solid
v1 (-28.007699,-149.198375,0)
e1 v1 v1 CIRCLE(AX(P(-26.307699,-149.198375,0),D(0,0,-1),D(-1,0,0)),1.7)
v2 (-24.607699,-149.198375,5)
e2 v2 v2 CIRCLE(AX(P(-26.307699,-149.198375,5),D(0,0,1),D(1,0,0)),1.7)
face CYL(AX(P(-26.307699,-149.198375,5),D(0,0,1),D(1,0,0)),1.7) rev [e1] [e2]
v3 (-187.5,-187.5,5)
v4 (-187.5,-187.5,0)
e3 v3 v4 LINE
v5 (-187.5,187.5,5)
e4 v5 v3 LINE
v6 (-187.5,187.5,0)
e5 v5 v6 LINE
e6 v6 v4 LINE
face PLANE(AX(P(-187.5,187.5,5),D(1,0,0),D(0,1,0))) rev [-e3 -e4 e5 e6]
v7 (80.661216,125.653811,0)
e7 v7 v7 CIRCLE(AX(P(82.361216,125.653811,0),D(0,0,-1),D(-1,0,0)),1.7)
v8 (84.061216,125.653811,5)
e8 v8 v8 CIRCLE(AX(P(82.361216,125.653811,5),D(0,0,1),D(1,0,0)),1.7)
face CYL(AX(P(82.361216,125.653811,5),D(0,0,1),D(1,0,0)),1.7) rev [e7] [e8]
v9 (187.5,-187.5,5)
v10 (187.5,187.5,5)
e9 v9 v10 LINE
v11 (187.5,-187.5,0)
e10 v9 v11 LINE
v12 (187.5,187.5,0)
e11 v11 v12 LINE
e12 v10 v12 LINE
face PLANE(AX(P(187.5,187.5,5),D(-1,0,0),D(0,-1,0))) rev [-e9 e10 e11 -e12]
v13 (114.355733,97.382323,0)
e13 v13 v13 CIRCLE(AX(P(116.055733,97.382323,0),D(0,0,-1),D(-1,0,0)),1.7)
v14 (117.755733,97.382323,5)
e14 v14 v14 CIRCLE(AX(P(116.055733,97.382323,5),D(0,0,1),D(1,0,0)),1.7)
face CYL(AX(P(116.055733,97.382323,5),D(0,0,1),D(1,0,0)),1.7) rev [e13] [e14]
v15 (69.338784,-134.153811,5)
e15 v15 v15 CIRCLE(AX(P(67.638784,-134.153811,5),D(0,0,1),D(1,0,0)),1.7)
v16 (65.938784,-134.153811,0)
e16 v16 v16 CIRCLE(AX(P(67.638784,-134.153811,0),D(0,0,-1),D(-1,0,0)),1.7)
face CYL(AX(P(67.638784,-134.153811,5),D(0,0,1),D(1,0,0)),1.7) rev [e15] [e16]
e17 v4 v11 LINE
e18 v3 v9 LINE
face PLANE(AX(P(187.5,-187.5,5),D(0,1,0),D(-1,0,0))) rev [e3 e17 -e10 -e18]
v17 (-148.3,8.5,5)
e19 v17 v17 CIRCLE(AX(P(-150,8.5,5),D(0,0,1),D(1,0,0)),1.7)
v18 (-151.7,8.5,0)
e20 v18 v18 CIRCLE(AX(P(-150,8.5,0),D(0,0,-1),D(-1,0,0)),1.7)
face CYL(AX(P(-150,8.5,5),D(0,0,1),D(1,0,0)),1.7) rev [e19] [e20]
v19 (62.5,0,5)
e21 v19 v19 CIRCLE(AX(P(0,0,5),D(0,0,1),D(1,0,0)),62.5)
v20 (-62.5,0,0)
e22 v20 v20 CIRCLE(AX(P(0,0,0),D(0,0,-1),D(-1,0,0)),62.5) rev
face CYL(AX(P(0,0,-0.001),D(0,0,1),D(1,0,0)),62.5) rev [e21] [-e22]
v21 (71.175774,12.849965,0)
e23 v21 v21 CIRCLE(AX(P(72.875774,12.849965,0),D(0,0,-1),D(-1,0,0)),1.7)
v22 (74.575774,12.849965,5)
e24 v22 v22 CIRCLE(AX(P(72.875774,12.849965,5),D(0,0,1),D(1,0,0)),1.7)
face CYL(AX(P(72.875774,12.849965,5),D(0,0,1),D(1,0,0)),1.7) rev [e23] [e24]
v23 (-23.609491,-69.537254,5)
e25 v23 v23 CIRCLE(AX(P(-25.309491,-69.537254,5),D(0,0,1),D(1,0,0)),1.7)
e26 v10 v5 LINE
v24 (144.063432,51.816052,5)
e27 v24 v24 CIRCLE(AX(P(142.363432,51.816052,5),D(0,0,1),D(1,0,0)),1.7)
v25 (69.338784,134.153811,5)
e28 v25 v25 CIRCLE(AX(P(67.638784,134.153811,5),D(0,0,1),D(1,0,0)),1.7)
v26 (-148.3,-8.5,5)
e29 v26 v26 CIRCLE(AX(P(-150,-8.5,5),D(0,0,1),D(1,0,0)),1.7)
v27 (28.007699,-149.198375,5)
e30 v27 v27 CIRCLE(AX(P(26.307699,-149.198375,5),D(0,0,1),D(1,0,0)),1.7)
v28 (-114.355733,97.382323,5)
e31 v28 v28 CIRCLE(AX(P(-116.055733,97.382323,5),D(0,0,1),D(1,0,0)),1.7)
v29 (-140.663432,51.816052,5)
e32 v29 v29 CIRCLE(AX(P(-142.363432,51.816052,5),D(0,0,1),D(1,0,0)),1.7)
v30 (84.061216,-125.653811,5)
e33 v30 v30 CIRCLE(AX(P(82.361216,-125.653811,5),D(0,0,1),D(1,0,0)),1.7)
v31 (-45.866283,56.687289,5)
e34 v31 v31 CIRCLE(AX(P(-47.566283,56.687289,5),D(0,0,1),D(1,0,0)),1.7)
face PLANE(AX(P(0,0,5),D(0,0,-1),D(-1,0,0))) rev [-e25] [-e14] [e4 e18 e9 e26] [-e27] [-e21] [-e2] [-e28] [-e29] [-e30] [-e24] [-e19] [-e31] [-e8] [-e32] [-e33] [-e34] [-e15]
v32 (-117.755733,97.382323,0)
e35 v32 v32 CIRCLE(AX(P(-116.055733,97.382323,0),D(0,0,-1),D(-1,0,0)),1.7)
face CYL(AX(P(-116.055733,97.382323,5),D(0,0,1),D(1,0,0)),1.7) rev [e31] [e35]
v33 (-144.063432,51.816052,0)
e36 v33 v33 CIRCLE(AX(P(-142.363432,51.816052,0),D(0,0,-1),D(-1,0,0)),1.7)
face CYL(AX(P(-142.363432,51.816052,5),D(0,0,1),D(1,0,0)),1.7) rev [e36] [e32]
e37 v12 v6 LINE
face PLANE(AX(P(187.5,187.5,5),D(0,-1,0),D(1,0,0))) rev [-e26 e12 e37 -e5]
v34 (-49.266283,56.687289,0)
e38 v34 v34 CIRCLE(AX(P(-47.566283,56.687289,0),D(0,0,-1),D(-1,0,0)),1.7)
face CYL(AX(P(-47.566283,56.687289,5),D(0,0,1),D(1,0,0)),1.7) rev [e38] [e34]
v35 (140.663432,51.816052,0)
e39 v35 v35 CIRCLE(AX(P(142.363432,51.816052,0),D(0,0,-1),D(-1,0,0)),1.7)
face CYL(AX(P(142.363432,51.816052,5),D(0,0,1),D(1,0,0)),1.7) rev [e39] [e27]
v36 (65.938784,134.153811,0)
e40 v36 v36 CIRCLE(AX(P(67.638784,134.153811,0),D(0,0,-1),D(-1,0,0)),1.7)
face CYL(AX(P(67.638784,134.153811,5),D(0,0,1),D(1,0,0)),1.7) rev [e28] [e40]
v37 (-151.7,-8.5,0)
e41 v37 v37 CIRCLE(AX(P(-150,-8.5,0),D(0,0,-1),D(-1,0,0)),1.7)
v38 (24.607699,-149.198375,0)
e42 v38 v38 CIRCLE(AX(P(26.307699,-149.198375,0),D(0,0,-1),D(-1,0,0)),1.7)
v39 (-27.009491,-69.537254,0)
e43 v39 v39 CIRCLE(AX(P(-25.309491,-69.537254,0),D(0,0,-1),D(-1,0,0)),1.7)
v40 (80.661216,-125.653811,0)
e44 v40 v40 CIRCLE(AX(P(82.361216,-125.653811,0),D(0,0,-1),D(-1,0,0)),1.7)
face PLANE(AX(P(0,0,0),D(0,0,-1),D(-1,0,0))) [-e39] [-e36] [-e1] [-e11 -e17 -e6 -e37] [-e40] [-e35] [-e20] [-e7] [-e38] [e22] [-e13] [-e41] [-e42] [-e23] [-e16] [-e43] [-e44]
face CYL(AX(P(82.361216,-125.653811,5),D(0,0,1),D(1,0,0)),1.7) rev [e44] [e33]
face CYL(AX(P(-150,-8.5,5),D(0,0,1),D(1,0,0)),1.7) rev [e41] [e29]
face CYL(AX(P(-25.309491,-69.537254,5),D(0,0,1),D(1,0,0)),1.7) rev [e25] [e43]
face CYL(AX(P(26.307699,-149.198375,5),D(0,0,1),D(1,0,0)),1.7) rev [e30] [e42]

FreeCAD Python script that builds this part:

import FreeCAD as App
import Part
import Sketcher

V = App.Vector

doc = App.newDocument("Part")
body = doc.addObject("PartDesign::Body", "Body")

# Sketch on XY plane
sketch1 = body.newObject("Sketcher::SketchObject", "Sketch")
sketch1.AttachmentSupport = (doc.getObject("XY_Plane"), [""])
sketch1.MapMode = "FlatFace"
sketch1.addGeometry([
    Part.LineSegment(V(-187.5, 187.5, 0), V(-187.5, -187.5, 0)),
    Part.LineSegment(V(-187.5, -187.5, 0), V(187.5, -187.5, 0)),
    Part.LineSegment(V(187.5, -187.5, 0), V(187.5, 187.5, 0)),
    Part.LineSegment(V(187.5, 187.5, 0), V(-187.5, 187.5, 0)),
], False)
sketch1.addConstraint([
    Sketcher.Constraint("Coincident", 0, 2, 1, 1),
    Sketcher.Constraint("Coincident", 1, 2, 2, 1),
    Sketcher.Constraint("Coincident", 2, 2, 3, 1),
    Sketcher.Constraint("Coincident", 3, 2, 0, 1),
    Sketcher.Constraint("Vertical", 0),
    Sketcher.Constraint("Horizontal", 1),
    Sketcher.Constraint("Vertical", 2),
    Sketcher.Constraint("Horizontal", 3),
    Sketcher.Constraint("Symmetric", 0, 2, 2, 2, -1, 1),
    Sketcher.Constraint("Equal", 3, 0),
    Sketcher.Constraint("DistanceX", 1, 1, 1, 2, 375.0),
])
pad1 = body.newObject("PartDesign::Pad", "Pad")
pad1.Profile = sketch1
pad1.Length = 5

# Sketch on XY plane
sketch2 = body.newObject("Sketcher::SketchObject", "Sketch001")
sketch2.AttachmentSupport = (doc.getObject("XY_Plane"), [""])
sketch2.MapMode = "FlatFace"
sketch2.AttachmentOffset = App.Placement(V(0, 0, 5), App.Rotation())
sketch2.addGeometry(Part.Circle(V(0, 0, 0), V(0, 0, 1), 62.5), False)
sketch2.addConstraint([
    Sketcher.Constraint("Coincident", 0, 3, -1, 1),
    Sketcher.Constraint("Diameter", 0, 125.0),
])
pocket1 = body.newObject("PartDesign::Pocket", "Pocket")
pocket1.Profile = sketch2
pocket1.Type = "UpToFirst"

# Sketch on XY plane
sketch3 = body.newObject("Sketcher::SketchObject", "Sketch002")
sketch3.AttachmentSupport = (doc.getObject("XY_Plane"), [""])
sketch3.MapMode = "FlatFace"
sketch3.AttachmentOffset = App.Placement(V(0, 0, 5), App.Rotation())
sketch3.addGeometry([
    Part.Circle(V(-26.307699, -149.198375, 0), V(0, 0, 1), 1.7),
    Part.Circle(V(26.307699, -149.198375, 0), V(0, 0, 1), 1.7),
], False)
sketch3.addConstraint([
    Sketcher.Constraint("Equal", 0, 1),
    Sketcher.Constraint("Symmetric", 0, 3, 1, 3, -2),
    Sketcher.Constraint("Diameter", 0, 3.4),
    Sketcher.Constraint("DistanceX", 0, 3, -1, 1, 26.307699),
    Sketcher.Constraint("DistanceY", 0, 3, -1, 1, 149.198375),
])
doc.recompute()
hole = body.newObject("PartDesign::Hole", "Hole")
hole.Profile = sketch3
hole.ThreadType = "None"
hole.Diameter = 3.4
hole.DepthType = "ThroughAll"
doc.recompute()

polarpattern = body.newObject("PartDesign::PolarPattern", "PolarPattern")
polarpattern.Originals = [hole]
polarpattern.Axis = (doc.getObject("Z_Axis"), [""])
polarpattern.Angle = 360
polarpattern.Occurrences = 3
body.Tip = polarpattern

# Sketch on XY plane
sketch4 = body.newObject("Sketcher::SketchObject", "Sketch003")
sketch4.AttachmentSupport = (doc.getObject("XY_Plane"), [""])
sketch4.MapMode = "FlatFace"
sketch4.AttachmentOffset = App.Placement(V(0, 0, 5), App.Rotation())
sketch4.addGeometry(Part.Circle(V(-25.309491, -69.537254, 0), V(0, 0, 1), 1.7), False)
sketch4.addConstraint([
    Sketcher.Constraint("Diameter", 0, 3.4),
    Sketcher.Constraint("DistanceX", 0, 3, -1, 1, 25.309491),
    Sketcher.Constraint("DistanceY", 0, 3, -1, 1, 69.537254),
])
doc.recompute()
hole2 = body.newObject("PartDesign::Hole", "Hole001")
hole2.Profile = sketch4
hole2.ThreadType = "None"
hole2.Diameter = 3.4
hole2.DepthType = "ThroughAll"
doc.recompute()

polarpattern2 = body.newObject("PartDesign::PolarPattern", "PolarPattern001")
polarpattern2.Originals = [hole2]
polarpattern2.Axis = (doc.getObject("Z_Axis"), [""])
polarpattern2.Angle = 360
polarpattern2.Occurrences = 3
body.Tip = polarpattern2

# Sketch on XY plane
sketch5 = body.newObject("Sketcher::SketchObject", "Sketch004")
sketch5.AttachmentSupport = (doc.getObject("XY_Plane"), [""])
sketch5.MapMode = "FlatFace"
sketch5.AttachmentOffset = App.Placement(V(0, 0, 5), App.Rotation())
sketch5.addGeometry([
    Part.Circle(V(67.638784, 134.153811, 0), V(0, 0, 1), 1.7),
    Part.Circle(V(82.361216, 125.653811, 0), V(0, 0, 1), 1.7),
], False)
sketch5.addConstraint([
    Sketcher.Constraint("Equal", 0, 1),
    Sketcher.Constraint("Diameter", 0, 3.4),
    Sketcher.Constraint("DistanceY", 1, 3, 0, 3, 8.5),
    Sketcher.Constraint("DistanceY", -1, 1, 0, 3, 134.153811),
    Sketcher.Constraint("DistanceX", 0, 3, 1, 3, 14.722432),
    Sketcher.Constraint("DistanceX", -1, 1, 0, 3, 67.638784),
])
doc.recompute()
hole3 = body.newObject("PartDesign::Hole", "Hole002")
hole3.Profile = sketch5
hole3.ThreadType = "None"
hole3.Diameter = 3.4
hole3.DepthType = "ThroughAll"
doc.recompute()

polarpattern3 = body.newObject("PartDesign::PolarPattern", "PolarPattern002")
polarpattern3.Originals = [hole3]
polarpattern3.Axis = (doc.getObject("Z_Axis"), [""])
polarpattern3.Angle = 360
polarpattern3.Occurrences = 3
body.Tip = polarpattern3

doc.recompute()
